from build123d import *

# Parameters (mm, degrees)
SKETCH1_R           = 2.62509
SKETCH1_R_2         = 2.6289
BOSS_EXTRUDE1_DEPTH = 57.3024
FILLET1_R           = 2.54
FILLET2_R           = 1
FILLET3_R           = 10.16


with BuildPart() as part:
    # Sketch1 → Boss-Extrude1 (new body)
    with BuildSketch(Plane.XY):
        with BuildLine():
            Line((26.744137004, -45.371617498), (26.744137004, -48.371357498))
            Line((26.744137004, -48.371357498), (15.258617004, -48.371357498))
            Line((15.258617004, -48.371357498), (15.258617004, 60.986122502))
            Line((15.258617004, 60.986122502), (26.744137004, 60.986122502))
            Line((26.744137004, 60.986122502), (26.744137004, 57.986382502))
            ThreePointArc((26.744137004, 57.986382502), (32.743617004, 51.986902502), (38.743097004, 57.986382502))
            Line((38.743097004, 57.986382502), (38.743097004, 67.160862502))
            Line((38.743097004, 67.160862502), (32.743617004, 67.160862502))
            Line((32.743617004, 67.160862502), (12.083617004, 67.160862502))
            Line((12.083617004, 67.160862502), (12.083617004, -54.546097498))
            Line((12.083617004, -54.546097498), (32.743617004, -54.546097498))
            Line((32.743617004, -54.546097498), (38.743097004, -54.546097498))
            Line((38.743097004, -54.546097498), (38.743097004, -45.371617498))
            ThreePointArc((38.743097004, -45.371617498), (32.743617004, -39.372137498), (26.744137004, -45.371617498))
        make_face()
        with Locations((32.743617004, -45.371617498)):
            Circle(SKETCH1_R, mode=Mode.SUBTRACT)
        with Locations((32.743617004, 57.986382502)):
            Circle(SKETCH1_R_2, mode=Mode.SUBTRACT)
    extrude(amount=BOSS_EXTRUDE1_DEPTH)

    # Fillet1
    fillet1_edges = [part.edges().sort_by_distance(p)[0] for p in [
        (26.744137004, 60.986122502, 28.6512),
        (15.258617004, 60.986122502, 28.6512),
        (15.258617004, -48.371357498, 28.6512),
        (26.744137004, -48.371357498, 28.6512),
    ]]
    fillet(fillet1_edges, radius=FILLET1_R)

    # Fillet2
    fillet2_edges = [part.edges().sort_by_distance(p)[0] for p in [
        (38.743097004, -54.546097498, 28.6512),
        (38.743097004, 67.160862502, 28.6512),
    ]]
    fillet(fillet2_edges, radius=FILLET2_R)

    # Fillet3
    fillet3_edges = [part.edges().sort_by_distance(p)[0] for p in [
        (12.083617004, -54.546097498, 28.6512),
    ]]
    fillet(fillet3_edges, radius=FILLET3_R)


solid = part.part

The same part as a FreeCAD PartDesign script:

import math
import FreeCAD as App
import Part
import Sketcher
from FreeCAD import Vector
Q = App.Units.Quantity


def edges_at(feature, points):
    """Names of the edges that pass closest to the given points."""
    edges = feature.Shape.Edges
    near = lambda p: min(range(len(edges)), key=lambda i: edges[i].distToShape(Part.Vertex(*p))[0])
    return sorted({f"Edge{near(p) + 1}" for p in points})

doc = App.newDocument("Part")
params = doc.addObject("Spreadsheet::Sheet", "Params")
for row, (alias, value) in enumerate([
    ("sketch1_diameter", "0.207 in"),
    ("pad1_length", "2.256 in"),
    ("fillet_radius", "0.1 in"),
    ("fillet2_radius", "1 mm"),
    ("fillet3_radius", "0.4 in"),
], start=1):
    params.set(f"A{row}", alias)
    params.set(f"B{row}", "=" + value)
    params.setAlias(f"B{row}", alias)

body = doc.addObject("PartDesign::Body", "Body")

# Sketch on XY plane
sketch1 = body.newObject("Sketcher::SketchObject", "Sketch")
sketch1.AttachmentSupport = (doc.getObject("XY_Plane"), [""])
sketch1.MapMode = "FlatFace"
sketch1.addGeometry([
    Part.LineSegment(Vector(26.7, -45.4, 0), Vector(26.7, -48.4, 0)),  # 0
    Part.LineSegment(Vector(26.7, -48.4, 0), Vector(15.3, -48.4, 0)),  # 1
    Part.LineSegment(Vector(15.3, -48.4, 0), Vector(15.3, 61, 0)),  # 2
    Part.LineSegment(Vector(15.3, 61, 0), Vector(26.7, 61, 0)),  # 3
    Part.LineSegment(Vector(26.7, 61, 0), Vector(26.7, 58, 0)),  # 4
    Part.ArcOfCircle(Part.Circle(Vector(32.7, 58, 0), Vector(0, 0, 1), 6), math.radians(180), math.radians(360)),  # 5
    Part.LineSegment(Vector(38.7, 58, 0), Vector(38.7, 67.2, 0)),  # 6
    Part.LineSegment(Vector(38.7, 67.2, 0), Vector(12.1, 67.2, 0)),  # 7
    Part.LineSegment(Vector(12.1, 67.2, 0), Vector(12.1, -54.5, 0)),  # 8
    Part.LineSegment(Vector(12.1, -54.5, 0), Vector(38.7, -54.5, 0)),  # 9
    Part.LineSegment(Vector(38.7, -54.5, 0), Vector(38.7, -45.4, 0)),  # 10
    Part.ArcOfCircle(Part.Circle(Vector(32.7, -45.4, 0), Vector(0, 0, 1), 6), math.radians(0), math.radians(180)),  # 11
    Part.Circle(Vector(32.7, -45.4, 0), Vector(0, 0, 1), 2.6),  # 12
    Part.Circle(Vector(32.7, 58, 0), Vector(0, 0, 1), 2.6),  # 13
], False)
sketch1.addConstraint([
    Sketcher.Constraint("Coincident", 0, 2, 1, 1),
    Sketcher.Constraint("Coincident", 1, 2, 2, 1),
    Sketcher.Constraint("Coincident", 2, 2, 3, 1),
    Sketcher.Constraint("Coincident", 3, 2, 4, 1),
    Sketcher.Constraint("Tangent", 4, 2, 5, 1),
    Sketcher.Constraint("Tangent", 5, 2, 6, 1),
    Sketcher.Constraint("Coincident", 6, 2, 7, 1),
    Sketcher.Constraint("Coincident", 7, 2, 8, 1),
    Sketcher.Constraint("Coincident", 8, 2, 9, 1),
    Sketcher.Constraint("Coincident", 9, 2, 10, 1),
    Sketcher.Constraint("Tangent", 10, 2, 11, 1),
    Sketcher.Constraint("Tangent", 11, 2, 0, 1),
    Sketcher.Constraint("Vertical", 0),
    Sketcher.Constraint("Horizontal", 1),
    Sketcher.Constraint("Vertical", 2),
    Sketcher.Constraint("Horizontal", 3),
    Sketcher.Constraint("Vertical", 4),
    Sketcher.Constraint("Vertical", 6),
    Sketcher.Constraint("Horizontal", 7),
    Sketcher.Constraint("Vertical", 8),
    Sketcher.Constraint("Horizontal", 9),
    Sketcher.Constraint("Vertical", 10),
    Sketcher.Constraint("Coincident", 12, 3, 11, 3),
    Sketcher.Constraint("Coincident", 13, 3, 5, 3),
    Sketcher.Constraint("Equal", 5, 11),
    Sketcher.Constraint("Vertical", 5, 3, 11, 3),
    Sketcher.Constraint("Equal", 0, 4),
    Sketcher.Constraint("Equal", 6, 10),
    Sketcher.Constraint("Diameter", 13, Q("0.207 in")),
    Sketcher.Constraint("Diameter", 12, Q("0.2067 in")),
    Sketcher.Constraint("Radius", 5, Q("0.2362 in")),
    Sketcher.Constraint("DistanceY", 0, 2, 0, 1, Q("0.1181 in")),
    Sketcher.Constraint("DistanceY", 6, 1, 6, 2, Q("0.3612 in")),
    Sketcher.Constraint("DistanceX", 7, 2, 2, 2, Q("0.125 in")),
    Sketcher.Constraint("DistanceX", 1, 2, 1, 1, Q("11.48552 mm")),
    Sketcher.Constraint("DistanceY", 2, 1, 2, 2, Q("109.35748 mm")),
    Sketcher.Constraint("DistanceX", -1, 1, 5, 3, Q("32.743617 mm")),
    Sketcher.Constraint("DistanceY", -1, 1, 5, 3, Q("57.986383 mm")),
])
sketch1.setExpression("Constraints[28]", "Params.sketch1_diameter")
pad1 = body.newObject("PartDesign::Pad", "Pad")
pad1.Profile = sketch1
pad1.setExpression("Length", "Params.pad1_length")
doc.recompute()

fillet = body.newObject("PartDesign::Fillet", "Fillet")
fillet.Base = (pad1, edges_at(pad1, [
    (26.744, 60.986, 28.651),
    (15.259, 60.986, 28.651),
    (15.259, -48.371, 28.651),
    (26.744, -48.371, 28.651),
]))
fillet.setExpression("Radius", "Params.fillet_radius")
doc.recompute()

fillet2 = body.newObject("PartDesign::Fillet", "Fillet001")
fillet2.Base = (fillet, edges_at(fillet, [(38.743, -54.546, 28.651), (38.743, 67.161, 28.651)]))
fillet2.setExpression("Radius", "Params.fillet2_radius")
doc.recompute()

fillet3 = body.newObject("PartDesign::Fillet", "Fillet002")
fillet3.Base = (fillet2, edges_at(fillet2, [(12.084, -54.546, 28.651)]))
fillet3.setExpression("Radius", "Params.fillet3_radius")

doc.recompute()
